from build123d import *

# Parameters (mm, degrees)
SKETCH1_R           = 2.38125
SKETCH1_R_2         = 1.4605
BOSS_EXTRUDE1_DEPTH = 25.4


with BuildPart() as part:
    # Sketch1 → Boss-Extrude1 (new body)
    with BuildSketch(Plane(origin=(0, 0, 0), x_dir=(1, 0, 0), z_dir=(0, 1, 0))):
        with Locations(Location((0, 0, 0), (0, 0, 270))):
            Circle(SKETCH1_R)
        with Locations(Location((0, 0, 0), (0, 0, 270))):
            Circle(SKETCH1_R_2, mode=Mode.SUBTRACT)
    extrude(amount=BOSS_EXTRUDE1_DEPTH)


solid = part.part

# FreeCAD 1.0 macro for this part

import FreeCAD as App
import Part
import Sketcher
from FreeCAD import Vector
Q = App.Units.Quantity

doc = App.newDocument("Part")
body = doc.addObject("PartDesign::Body", "Body")

# Sketch on XZ plane
sketch1 = body.newObject("Sketcher::SketchObject", "Sketch")
sketch1.AttachmentSupport = (doc.getObject("XZ_Plane"), [""])
sketch1.MapMode = "FlatFace"
sketch1.addGeometry([
    Part.Circle(Vector(0, 0, 0), Vector(0, 0, 1), 2.4),
    Part.Circle(Vector(0, 0, 0), Vector(0, 0, 1), 1.5),
], False)
sketch1.addConstraint([
    Sketcher.Constraint("Coincident", 0, 3, -1, 1),
    Sketcher.Constraint("Coincident", 1, 3, -1, 1),
    Sketcher.Constraint("Diameter", 0, Q("0.1875 in")),
    Sketcher.Constraint("Diameter", 1, Q("0.115 in")),
])
pad1 = body.newObject("PartDesign::Pad", "Pad")
pad1.Profile = sketch1
pad1.Length = Q("1 in")
pad1.Reversed = True

doc.recompute()
